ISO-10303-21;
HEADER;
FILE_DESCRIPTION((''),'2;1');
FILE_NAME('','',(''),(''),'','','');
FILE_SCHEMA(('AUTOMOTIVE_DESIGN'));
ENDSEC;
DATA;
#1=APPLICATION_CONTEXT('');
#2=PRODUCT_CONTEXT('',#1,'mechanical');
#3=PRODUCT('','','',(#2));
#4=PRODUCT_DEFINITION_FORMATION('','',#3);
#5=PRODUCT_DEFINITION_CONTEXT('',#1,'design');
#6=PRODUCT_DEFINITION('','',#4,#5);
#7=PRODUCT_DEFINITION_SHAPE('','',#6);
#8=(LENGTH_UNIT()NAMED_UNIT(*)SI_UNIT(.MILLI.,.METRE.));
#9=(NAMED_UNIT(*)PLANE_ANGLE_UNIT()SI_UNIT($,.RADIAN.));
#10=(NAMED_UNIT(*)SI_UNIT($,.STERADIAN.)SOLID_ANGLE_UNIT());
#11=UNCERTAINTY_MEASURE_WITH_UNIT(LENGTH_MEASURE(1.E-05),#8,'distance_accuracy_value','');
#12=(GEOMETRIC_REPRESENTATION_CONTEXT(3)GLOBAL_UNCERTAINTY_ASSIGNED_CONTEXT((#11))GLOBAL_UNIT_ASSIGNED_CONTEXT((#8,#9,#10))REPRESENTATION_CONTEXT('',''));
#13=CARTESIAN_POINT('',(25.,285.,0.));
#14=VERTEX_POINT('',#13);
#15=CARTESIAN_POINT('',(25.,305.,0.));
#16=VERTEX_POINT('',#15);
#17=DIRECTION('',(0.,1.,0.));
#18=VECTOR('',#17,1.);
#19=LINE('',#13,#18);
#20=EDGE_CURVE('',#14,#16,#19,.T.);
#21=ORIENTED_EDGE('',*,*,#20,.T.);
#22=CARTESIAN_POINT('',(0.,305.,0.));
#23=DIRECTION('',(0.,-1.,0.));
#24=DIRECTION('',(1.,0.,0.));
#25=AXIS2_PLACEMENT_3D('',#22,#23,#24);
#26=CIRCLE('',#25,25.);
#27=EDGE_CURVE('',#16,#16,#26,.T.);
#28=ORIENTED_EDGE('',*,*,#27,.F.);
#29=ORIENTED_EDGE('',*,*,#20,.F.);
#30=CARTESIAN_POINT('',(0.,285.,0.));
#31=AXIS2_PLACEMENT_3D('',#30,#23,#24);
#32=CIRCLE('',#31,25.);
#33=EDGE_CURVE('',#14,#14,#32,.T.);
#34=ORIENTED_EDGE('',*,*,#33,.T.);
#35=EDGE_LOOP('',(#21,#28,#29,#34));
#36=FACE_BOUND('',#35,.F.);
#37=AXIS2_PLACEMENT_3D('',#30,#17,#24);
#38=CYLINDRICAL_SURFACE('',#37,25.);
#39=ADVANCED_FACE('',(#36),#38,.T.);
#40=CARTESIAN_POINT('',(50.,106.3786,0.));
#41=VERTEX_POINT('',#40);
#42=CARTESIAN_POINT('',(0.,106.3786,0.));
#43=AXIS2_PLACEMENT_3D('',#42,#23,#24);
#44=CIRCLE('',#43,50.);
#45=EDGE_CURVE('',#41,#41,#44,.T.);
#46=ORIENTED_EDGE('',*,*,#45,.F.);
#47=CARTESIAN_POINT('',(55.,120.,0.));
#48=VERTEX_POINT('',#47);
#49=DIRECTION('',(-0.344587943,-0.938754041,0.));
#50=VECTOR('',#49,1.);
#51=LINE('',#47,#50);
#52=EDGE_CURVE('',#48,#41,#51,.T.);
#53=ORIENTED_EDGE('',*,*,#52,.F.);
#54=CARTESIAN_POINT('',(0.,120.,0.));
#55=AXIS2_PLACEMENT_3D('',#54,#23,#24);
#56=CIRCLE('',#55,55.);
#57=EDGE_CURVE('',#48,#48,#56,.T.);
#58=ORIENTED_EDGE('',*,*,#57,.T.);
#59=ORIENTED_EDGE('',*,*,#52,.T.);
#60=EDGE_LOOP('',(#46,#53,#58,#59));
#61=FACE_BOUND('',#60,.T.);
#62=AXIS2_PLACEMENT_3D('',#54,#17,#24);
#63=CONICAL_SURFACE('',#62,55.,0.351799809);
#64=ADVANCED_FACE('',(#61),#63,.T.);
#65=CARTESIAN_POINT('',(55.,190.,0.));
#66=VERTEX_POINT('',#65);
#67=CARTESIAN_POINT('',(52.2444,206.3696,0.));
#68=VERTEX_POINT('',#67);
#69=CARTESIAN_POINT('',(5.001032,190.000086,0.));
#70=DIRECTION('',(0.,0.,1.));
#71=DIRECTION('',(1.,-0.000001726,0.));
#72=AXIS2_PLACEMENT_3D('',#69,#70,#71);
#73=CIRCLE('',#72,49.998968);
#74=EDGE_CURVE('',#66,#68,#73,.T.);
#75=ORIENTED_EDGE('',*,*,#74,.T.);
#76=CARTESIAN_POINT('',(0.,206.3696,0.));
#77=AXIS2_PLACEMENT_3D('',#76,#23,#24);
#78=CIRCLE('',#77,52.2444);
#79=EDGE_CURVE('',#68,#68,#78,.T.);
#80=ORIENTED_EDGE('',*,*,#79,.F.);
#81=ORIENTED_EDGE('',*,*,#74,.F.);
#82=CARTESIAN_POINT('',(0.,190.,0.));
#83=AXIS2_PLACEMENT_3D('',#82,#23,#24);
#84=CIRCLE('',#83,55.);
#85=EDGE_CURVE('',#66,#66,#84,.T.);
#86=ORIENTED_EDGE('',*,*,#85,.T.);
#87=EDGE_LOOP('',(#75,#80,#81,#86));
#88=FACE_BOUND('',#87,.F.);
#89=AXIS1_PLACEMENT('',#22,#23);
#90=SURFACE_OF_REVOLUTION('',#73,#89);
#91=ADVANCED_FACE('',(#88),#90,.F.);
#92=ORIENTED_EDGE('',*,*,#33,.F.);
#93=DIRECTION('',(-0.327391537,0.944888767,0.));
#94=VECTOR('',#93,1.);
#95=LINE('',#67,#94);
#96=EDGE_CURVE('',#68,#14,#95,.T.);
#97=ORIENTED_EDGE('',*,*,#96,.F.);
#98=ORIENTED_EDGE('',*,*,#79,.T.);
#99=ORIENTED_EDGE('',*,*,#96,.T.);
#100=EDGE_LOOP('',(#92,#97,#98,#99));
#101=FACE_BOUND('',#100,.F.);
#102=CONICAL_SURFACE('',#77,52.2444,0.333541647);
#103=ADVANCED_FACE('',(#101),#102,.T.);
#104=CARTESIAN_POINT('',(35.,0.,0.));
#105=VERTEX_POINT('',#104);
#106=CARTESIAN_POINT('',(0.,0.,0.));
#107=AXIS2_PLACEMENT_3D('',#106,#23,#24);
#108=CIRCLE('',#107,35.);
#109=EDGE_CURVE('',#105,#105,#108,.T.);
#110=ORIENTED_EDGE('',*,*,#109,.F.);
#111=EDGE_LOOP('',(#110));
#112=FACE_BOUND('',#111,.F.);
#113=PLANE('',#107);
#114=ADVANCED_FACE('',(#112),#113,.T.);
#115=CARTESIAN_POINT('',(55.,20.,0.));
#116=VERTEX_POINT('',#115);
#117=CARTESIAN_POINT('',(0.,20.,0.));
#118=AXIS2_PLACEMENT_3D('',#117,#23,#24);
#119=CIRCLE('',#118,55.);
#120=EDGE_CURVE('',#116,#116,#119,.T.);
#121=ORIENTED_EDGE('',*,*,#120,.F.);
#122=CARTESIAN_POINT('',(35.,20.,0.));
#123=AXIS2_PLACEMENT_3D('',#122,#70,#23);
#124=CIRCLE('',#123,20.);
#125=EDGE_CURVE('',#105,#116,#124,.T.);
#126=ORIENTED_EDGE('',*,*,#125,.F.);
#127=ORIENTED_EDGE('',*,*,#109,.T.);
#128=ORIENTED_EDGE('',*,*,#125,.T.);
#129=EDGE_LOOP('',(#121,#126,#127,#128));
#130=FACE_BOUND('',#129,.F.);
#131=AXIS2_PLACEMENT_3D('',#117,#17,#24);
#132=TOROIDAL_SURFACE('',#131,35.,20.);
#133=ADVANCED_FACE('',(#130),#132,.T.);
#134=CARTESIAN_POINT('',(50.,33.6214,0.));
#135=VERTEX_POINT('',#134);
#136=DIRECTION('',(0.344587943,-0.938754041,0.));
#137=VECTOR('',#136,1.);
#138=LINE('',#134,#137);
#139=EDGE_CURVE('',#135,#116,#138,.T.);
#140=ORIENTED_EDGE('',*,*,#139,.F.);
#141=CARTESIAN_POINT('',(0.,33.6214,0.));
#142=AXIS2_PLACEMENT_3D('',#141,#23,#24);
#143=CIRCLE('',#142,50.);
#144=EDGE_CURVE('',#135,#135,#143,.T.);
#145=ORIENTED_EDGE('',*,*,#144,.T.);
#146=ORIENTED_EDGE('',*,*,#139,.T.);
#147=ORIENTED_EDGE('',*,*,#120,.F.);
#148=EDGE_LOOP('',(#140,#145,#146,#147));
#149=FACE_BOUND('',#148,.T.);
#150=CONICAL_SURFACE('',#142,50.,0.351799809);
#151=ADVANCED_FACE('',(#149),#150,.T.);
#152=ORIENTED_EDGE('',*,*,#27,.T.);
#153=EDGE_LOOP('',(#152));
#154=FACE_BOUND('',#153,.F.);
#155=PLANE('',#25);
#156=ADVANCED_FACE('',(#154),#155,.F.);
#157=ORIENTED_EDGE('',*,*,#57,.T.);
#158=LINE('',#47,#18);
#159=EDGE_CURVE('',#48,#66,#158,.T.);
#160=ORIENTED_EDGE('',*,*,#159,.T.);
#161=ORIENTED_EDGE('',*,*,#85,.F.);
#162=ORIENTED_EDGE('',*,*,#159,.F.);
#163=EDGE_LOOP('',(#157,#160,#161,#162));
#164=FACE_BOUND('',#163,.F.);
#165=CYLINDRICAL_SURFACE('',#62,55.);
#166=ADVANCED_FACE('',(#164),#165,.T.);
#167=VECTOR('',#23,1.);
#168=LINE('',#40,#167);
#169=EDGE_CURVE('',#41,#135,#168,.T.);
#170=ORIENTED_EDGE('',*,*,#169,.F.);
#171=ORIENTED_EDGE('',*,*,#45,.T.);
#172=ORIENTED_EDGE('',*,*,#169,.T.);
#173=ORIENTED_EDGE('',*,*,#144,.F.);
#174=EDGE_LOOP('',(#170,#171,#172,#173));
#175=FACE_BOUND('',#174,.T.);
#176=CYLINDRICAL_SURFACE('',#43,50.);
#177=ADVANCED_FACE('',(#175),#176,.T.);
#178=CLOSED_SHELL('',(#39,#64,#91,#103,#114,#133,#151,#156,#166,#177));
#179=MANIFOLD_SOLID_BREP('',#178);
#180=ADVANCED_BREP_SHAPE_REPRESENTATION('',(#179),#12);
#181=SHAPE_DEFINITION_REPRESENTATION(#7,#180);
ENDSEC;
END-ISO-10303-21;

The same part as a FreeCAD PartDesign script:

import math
import FreeCAD as App
import Part
import Sketcher

V = App.Vector
Q = App.Units.Quantity

doc = App.newDocument("Part")
body = doc.addObject("PartDesign::Body", "Body")

# Sketch on XY plane
sketch1 = body.newObject("Sketcher::SketchObject", "Sketch")
sketch1.AttachmentSupport = (doc.getObject("XY_Plane"), [""])
sketch1.MapMode = "FlatFace"
sketch1.addGeometry(Part.LineSegment(V(0, 305, 0), V(0, 0, 0)), False)
sketch1.addGeometry(Part.LineSegment(V(0, 0, 0), V(35, 0, 0)), False)
sketch1.addGeometry(Part.ArcOfCircle(Part.Circle(V(35, 20, 0), V(0, 0, 1), 20), math.radians(-90), math.radians(0)), False)
sketch1.addGeometry(Part.LineSegment(V(55, 20, 0), V(50, 33.6214, 0)), False)
sketch1.addGeometry(Part.LineSegment(V(50, 33.6214, 0), V(50, 106.3786, 0)), False)
sketch1.addGeometry(Part.LineSegment(V(50, 106.3786, 0), V(55, 120, 0)), False)
sketch1.addGeometry(Part.LineSegment(V(55, 120, 0), V(55, 190, 0)), False)
sketch1.addGeometry(Part.ArcOfCircle(Part.Circle(V(5.001032, 190.000086, 0), V(0, 0, 1), 49.998968), math.radians(-0.000099), math.radians(19.110862)), False)
sketch1.addGeometry(Part.LineSegment(V(52.2444, 206.3696, 0), V(25, 285, 0)), False)
sketch1.addGeometry(Part.LineSegment(V(25, 285, 0), V(25, 305, 0)), False)
sketch1.addGeometry(Part.LineSegment(V(25, 305, 0), V(0, 305, 0)), False)
sketch1.addConstraint(Sketcher.Constraint("Coincident", 0, 2, 1, 1))
sketch1.addConstraint(Sketcher.Constraint("Tangent", 1, 2, 2, 1))
sketch1.addConstraint(Sketcher.Constraint("Coincident", 2, 2, 3, 1))
sketch1.addConstraint(Sketcher.Constraint("Coincident", 3, 2, 4, 1))
sketch1.addConstraint(Sketcher.Constraint("Coincident", 4, 2, 5, 1))
sketch1.addConstraint(Sketcher.Constraint("Coincident", 5, 2, 6, 1))
sketch1.addConstraint(Sketcher.Constraint("Tangent", 6, 2, 7, 1))
sketch1.addConstraint(Sketcher.Constraint("Tangent", 7, 2, 8, 1))
sketch1.addConstraint(Sketcher.Constraint("Coincident", 8, 2, 9, 1))
sketch1.addConstraint(Sketcher.Constraint("Coincident", 9, 2, 10, 1))
sketch1.addConstraint(Sketcher.Constraint("Coincident", 10, 2, 0, 1))
sketch1.addConstraint(Sketcher.Constraint("Vertical", 0))
sketch1.addConstraint(Sketcher.Constraint("Horizontal", 1))
sketch1.addConstraint(Sketcher.Constraint("Vertical", 4))
sketch1.addConstraint(Sketcher.Constraint("Vertical", 6))
sketch1.addConstraint(Sketcher.Constraint("Vertical", 9))
sketch1.addConstraint(Sketcher.Constraint("Horizontal", 10))
sketch1.addConstraint(Sketcher.Constraint("Coincident", 0, 2, -1, 1))
sketch1.addConstraint(Sketcher.Constraint("Vertical", 2, 2, 5, 2))
sketch1.addConstraint(Sketcher.Constraint("Equal", 3, 5))
sketch1.addConstraint(Sketcher.Constraint("Radius", 2, Q("20 mm")))
sketch1.addConstraint(Sketcher.Constraint("DistanceX", 10, 2, 10, 1, Q("25 mm")))
sketch1.addConstraint(Sketcher.Constraint("DistanceY", 6, 1, 6, 2, Q("70 mm")))
sketch1.addConstraint(Sketcher.Constraint("DistanceY", 9, 1, 9, 2, Q("20 mm")))
sketch1.addConstraint(Sketcher.Constraint("DistanceX", -1, 1, 2, 2, Q("55 mm")))
sketch1.addConstraint(Sketcher.Constraint("DistanceY", -1, 1, 2, 2, Q("20 mm")))
sketch1.addConstraint(Sketcher.Constraint("DistanceX", -1, 1, 3, 2, Q("50 mm")))
sketch1.addConstraint(Sketcher.Constraint("DistanceY", -1, 1, 5, 2, Q("120 mm")))
sketch1.addConstraint(Sketcher.Constraint("DistanceY", 7, 3, 9, 2, Q("115 mm")))
sketch1.addConstraint(Sketcher.Constraint("Radius", 7, Q("49.999 mm")))
sketch1.addConstraint(Sketcher.Constraint("Distance", 3, Q("14.51 mm")))
revolution = body.newObject("PartDesign::Revolution", "Revolution")
revolution.Profile = sketch1
revolution.ReferenceAxis = (sketch1, ["V_Axis"])
revolution.Angle = 360

doc.recompute()
